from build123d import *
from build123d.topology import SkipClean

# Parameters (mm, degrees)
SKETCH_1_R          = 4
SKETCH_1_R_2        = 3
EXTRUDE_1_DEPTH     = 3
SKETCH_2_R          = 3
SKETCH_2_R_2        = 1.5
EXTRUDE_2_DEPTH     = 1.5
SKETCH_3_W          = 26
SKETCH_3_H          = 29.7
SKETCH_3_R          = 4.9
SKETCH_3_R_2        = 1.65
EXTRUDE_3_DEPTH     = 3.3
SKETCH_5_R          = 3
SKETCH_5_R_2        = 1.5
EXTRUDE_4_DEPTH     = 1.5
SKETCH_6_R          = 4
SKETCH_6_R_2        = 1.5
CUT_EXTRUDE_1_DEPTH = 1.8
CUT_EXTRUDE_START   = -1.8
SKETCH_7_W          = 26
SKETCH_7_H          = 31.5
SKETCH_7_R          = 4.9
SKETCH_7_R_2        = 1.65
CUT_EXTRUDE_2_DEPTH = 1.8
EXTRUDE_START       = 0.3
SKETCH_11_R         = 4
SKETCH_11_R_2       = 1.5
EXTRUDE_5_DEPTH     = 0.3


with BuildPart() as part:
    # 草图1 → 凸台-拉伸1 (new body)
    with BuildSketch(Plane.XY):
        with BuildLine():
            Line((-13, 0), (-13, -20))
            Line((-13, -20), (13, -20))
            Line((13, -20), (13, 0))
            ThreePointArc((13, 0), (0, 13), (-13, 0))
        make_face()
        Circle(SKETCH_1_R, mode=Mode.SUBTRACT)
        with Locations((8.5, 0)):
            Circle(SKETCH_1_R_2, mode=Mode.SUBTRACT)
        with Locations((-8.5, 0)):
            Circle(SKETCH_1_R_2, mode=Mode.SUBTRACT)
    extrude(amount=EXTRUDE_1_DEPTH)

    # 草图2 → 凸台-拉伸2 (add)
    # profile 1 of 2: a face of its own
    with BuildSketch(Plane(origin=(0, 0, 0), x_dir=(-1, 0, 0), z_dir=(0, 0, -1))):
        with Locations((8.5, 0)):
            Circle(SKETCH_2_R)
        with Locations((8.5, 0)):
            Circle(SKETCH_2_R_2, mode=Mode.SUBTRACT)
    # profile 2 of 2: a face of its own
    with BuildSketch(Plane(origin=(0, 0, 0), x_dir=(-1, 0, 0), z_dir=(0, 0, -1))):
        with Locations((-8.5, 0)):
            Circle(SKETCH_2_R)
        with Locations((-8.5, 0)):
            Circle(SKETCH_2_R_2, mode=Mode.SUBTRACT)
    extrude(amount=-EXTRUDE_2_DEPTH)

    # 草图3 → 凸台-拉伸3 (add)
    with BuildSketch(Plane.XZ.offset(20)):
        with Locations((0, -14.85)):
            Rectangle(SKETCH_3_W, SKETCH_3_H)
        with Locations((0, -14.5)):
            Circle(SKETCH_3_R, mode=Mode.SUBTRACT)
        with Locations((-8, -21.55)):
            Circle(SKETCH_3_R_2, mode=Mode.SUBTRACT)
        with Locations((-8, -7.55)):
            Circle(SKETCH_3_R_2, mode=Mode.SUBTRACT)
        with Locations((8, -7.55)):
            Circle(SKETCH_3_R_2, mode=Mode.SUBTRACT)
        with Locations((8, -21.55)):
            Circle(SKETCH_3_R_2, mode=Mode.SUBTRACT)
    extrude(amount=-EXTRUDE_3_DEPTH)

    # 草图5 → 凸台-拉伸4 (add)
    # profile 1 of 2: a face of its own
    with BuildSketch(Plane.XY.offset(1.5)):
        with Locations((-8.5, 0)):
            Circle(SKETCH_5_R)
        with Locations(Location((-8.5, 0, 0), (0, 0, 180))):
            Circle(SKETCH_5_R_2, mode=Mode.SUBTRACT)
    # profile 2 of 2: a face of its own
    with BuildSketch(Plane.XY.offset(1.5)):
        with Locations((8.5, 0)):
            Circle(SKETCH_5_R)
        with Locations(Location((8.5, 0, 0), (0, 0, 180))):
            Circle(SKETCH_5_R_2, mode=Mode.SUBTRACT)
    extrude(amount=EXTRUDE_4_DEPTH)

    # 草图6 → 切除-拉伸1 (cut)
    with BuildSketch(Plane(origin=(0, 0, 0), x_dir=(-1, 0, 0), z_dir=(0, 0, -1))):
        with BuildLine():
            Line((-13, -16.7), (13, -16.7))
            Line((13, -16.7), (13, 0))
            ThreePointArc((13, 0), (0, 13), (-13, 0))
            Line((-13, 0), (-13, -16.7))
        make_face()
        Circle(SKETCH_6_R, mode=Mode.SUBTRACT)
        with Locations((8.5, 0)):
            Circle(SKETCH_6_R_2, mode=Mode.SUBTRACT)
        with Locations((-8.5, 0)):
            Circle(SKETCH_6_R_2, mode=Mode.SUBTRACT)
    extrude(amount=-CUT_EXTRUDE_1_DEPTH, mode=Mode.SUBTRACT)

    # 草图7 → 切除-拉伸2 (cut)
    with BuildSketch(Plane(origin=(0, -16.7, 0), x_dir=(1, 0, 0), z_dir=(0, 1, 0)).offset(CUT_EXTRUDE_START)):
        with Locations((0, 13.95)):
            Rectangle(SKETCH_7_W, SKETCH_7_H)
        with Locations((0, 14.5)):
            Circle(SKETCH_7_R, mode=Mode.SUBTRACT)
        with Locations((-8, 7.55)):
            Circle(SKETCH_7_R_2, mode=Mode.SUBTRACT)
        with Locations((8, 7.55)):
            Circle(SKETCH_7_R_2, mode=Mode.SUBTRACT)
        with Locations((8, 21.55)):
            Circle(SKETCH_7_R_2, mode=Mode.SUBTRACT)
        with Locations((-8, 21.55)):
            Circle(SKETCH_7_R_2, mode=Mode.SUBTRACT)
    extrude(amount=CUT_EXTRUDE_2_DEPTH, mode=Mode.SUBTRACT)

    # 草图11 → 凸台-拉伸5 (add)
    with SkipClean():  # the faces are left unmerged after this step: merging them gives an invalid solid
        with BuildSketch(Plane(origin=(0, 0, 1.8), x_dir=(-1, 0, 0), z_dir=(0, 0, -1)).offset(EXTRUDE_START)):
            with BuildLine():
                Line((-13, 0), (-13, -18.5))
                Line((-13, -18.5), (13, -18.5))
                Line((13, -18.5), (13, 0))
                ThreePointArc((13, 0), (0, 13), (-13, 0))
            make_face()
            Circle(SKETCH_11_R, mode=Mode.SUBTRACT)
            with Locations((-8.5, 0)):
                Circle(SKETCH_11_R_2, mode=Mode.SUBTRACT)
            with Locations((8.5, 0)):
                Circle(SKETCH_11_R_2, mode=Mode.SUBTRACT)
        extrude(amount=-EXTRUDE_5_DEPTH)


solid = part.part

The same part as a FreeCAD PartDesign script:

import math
import FreeCAD as App
import Part
import Sketcher
from FreeCAD import Vector
Q = App.Units.Quantity


def add_polygon(sketch, points):
    """Adds a closed chain of lines whose ends are joined by coincident constraints."""
    first, n = sketch.GeometryCount, len(points)
    for a, b in zip(points, points[1:] + points[:1]):
        sketch.addGeometry(Part.LineSegment(App.Vector(*a, 0), App.Vector(*b, 0)), False)
    for i in range(n):
        sketch.addConstraint(Sketcher.Constraint("Coincident", first + i, 2, first + (i + 1) % n, 1))

doc = App.newDocument("Part")
body = doc.addObject("PartDesign::Body", "Body")

# Sketch on XY plane
sketch1 = doc.addObject("Sketcher::SketchObject", "Sketch")
body.addObject(sketch1)
sketch1.AttachmentSupport = (doc.XY_Plane, [""])
sketch1.MapMode = "FlatFace"
sketch1.addGeometry(Part.LineSegment(Vector(-13, 0, 0), Vector(-13, -20, 0)), False)
sketch1.addGeometry(Part.LineSegment(Vector(-13, -20, 0), Vector(13, -20, 0)), False)
sketch1.addGeometry(Part.LineSegment(Vector(13, -20, 0), Vector(13, 0, 0)), False)
sketch1.addGeometry(Part.ArcOfCircle(Part.Circle(Vector(0, 0, 0), Vector(0, 0, 1), 13), math.radians(0), math.radians(180)), False)
sketch1.addGeometry(Part.Circle(Vector(-8.5, 0, 0), Vector(0, 0, 1), 3), False)
sketch1.addGeometry(Part.Circle(Vector(0, 0, 0), Vector(0, 0, 1), 4), False)
sketch1.addGeometry(Part.Circle(Vector(8.5, 0, 0), Vector(0, 0, 1), 3), False)
sketch1.addConstraint(Sketcher.Constraint("Coincident", 0, 2, 1, 1))
sketch1.addConstraint(Sketcher.Constraint("Coincident", 1, 2, 2, 1))
sketch1.addConstraint(Sketcher.Constraint("Tangent", 2, 2, 3, 1))
sketch1.addConstraint(Sketcher.Constraint("Tangent", 3, 2, 0, 1))
sketch1.addConstraint(Sketcher.Constraint("Vertical", 0))
sketch1.addConstraint(Sketcher.Constraint("Horizontal", 1))
sketch1.addConstraint(Sketcher.Constraint("Vertical", 2))
sketch1.addConstraint(Sketcher.Constraint("Coincident", 3, 3, -1, 1))
sketch1.addConstraint(Sketcher.Constraint("Coincident", 5, 3, -1, 1))
sketch1.addConstraint(Sketcher.Constraint("Equal", 4, 6))
sketch1.addConstraint(Sketcher.Constraint("Symmetric", 4, 3, 6, 3, -1, 1))
sketch1.addConstraint(Sketcher.Constraint("PointOnObject", 4, 3, -1))
sketch1.addConstraint(Sketcher.Constraint("Diameter", 4, Q("6 mm")))
sketch1.addConstraint(Sketcher.Constraint("Diameter", 5, Q("8 mm")))
sketch1.addConstraint(Sketcher.Constraint("Radius", 3, Q("13 mm")))
sketch1.addConstraint(Sketcher.Constraint("DistanceY", 0, 2, 0, 1, Q("20 mm")))
sketch1.addConstraint(Sketcher.Constraint("DistanceX", 4, 3, 6, 3, Q("17 mm")))
pad1 = doc.addObject("PartDesign::Pad", "Pad")
body.addObject(pad1)
pad1.Profile = sketch1
pad1.Length = 3

# Sketch on XY plane
sketch2 = doc.addObject("Sketcher::SketchObject", "Sketch001")
body.addObject(sketch2)
sketch2.AttachmentSupport = (doc.XY_Plane, [""])
sketch2.MapMode = "FlatFace"
sketch2.addGeometry(Part.Circle(Vector(-8.5, 0, 0), Vector(0, 0, 1), 3), False)
sketch2.addGeometry(Part.Circle(Vector(-8.5, 0, 0), Vector(0, 0, 1), 1.5), False)
sketch2.addGeometry(Part.Circle(Vector(8.5, 0, 0), Vector(0, 0, 1), 3), False)
sketch2.addGeometry(Part.Circle(Vector(8.5, 0, 0), Vector(0, 0, 1), 1.5), False)
sketch2.addConstraint(Sketcher.Constraint("Coincident", 1, 3, 0, 3))
sketch2.addConstraint(Sketcher.Constraint("Coincident", 3, 3, 2, 3))
sketch2.addConstraint(Sketcher.Constraint("Equal", 0, 2))
sketch2.addConstraint(Sketcher.Constraint("Equal", 1, 3))
sketch2.addConstraint(Sketcher.Constraint("Symmetric", 0, 3, 2, 3, -1, 1))
sketch2.addConstraint(Sketcher.Constraint("PointOnObject", 0, 3, -1))
sketch2.addConstraint(Sketcher.Constraint("Diameter", 0, Q("6 mm")))
sketch2.addConstraint(Sketcher.Constraint("Diameter", 1, Q("3 mm")))
sketch2.addConstraint(Sketcher.Constraint("DistanceX", 0, 3, 2, 3, Q("17 mm")))
pad2 = doc.addObject("PartDesign::Pad", "Pad001")
body.addObject(pad2)
pad2.Profile = sketch2
pad2.Length = 1.5

# Sketch on XZ plane
sketch3 = doc.addObject("Sketcher::SketchObject", "Sketch002")
body.addObject(sketch3)
sketch3.AttachmentSupport = (doc.XZ_Plane, [""])
sketch3.MapMode = "FlatFace"
sketch3.AttachmentOffset = App.Placement(Vector(0, 0, 20), App.Rotation())
add_polygon(sketch3, [(-13, 0), (-13, -29.7), (13, -29.7), (13, 0)])  # lines 0-3
sketch3.addGeometry(Part.Circle(Vector(-8, -21.6, 0), Vector(0, 0, 1), 1.6), False)  # 4
sketch3.addGeometry(Part.Circle(Vector(8, -21.6, 0), Vector(0, 0, 1), 1.6), False)  # 5
sketch3.addGeometry(Part.Circle(Vector(-8, -7.5, 0), Vector(0, 0, 1), 1.6), False)  # 6
sketch3.addGeometry(Part.Circle(Vector(0, -14.5, 0), Vector(0, 0, 1), 4.9), False)  # 7
sketch3.addGeometry(Part.Circle(Vector(8, -7.5, 0), Vector(0, 0, 1), 1.6), False)  # 8
sketch3.addConstraint(Sketcher.Constraint("Vertical", 0))
sketch3.addConstraint(Sketcher.Constraint("Horizontal", 1))
sketch3.addConstraint(Sketcher.Constraint("Vertical", 2))
sketch3.addConstraint(Sketcher.Constraint("Horizontal", 3))
sketch3.addConstraint(Sketcher.Constraint("Equal", 4, 5))
sketch3.addConstraint(Sketcher.Constraint("Equal", 5, 6))
sketch3.addConstraint(Sketcher.Constraint("Equal", 6, 8))
sketch3.addConstraint(Sketcher.Constraint("Symmetric", 2, 2, 3, 2, -1, 1))
sketch3.addConstraint(Sketcher.Constraint("Symmetric", 4, 3, 5, 3, -2))
sketch3.addConstraint(Sketcher.Constraint("Symmetric", 6, 3, 8, 3, -2))
sketch3.addConstraint(Sketcher.Constraint("PointOnObject", 7, 3, -2))
sketch3.addConstraint(Sketcher.Constraint("Vertical", 4, 3, 6, 3))
sketch3.addConstraint(Sketcher.Constraint("Diameter", 4, Q("3.3 mm")))
sketch3.addConstraint(Sketcher.Constraint("Diameter", 7, Q("9.8 mm")))
sketch3.addConstraint(Sketcher.Constraint("DistanceX", 1, 1, 1, 2, Q("26 mm")))
sketch3.addConstraint(Sketcher.Constraint("DistanceY", 0, 2, 0, 1, Q("29.7 mm")))
sketch3.addConstraint(Sketcher.Constraint("DistanceX", 4, 3, -1, 1, Q("8 mm")))
sketch3.addConstraint(Sketcher.Constraint("DistanceY", 4, 3, 6, 3, Q("14 mm")))
sketch3.addConstraint(Sketcher.Constraint("DistanceY", 7, 3, -1, 1, Q("14.5 mm")))
sketch3.addConstraint(Sketcher.Constraint("DistanceY", 4, 3, -1, 1, Q("21.55 mm")))
pad3 = doc.addObject("PartDesign::Pad", "Pad002")
body.addObject(pad3)
pad3.Profile = sketch3
pad3.Length = 3.3
pad3.Reversed = True

# Sketch on XY plane
sketch4 = doc.addObject("Sketcher::SketchObject", "Sketch003")
body.addObject(sketch4)
sketch4.AttachmentSupport = (doc.XY_Plane, [""])
sketch4.MapMode = "FlatFace"
sketch4.AttachmentOffset = App.Placement(Vector(0, 0, 1.5), App.Rotation())
sketch4.addGeometry(Part.Circle(Vector(-8.5, 0, 0), Vector(0, 0, 1), 3), False)
sketch4.addGeometry(Part.Circle(Vector(-8.5, 0, 0), Vector(0, 0, 1), 1.5), False)
sketch4.addGeometry(Part.Circle(Vector(8.5, 0, 0), Vector(0, 0, 1), 3), False)
sketch4.addGeometry(Part.Circle(Vector(8.5, 0, 0), Vector(0, 0, 1), 1.5), False)
sketch4.addConstraint(Sketcher.Constraint("Coincident", 1, 3, 0, 3))
sketch4.addConstraint(Sketcher.Constraint("Coincident", 3, 3, 2, 3))
sketch4.addConstraint(Sketcher.Constraint("Equal", 0, 2))
sketch4.addConstraint(Sketcher.Constraint("Equal", 1, 3))
sketch4.addConstraint(Sketcher.Constraint("Symmetric", 0, 3, 2, 3, -1, 1))
sketch4.addConstraint(Sketcher.Constraint("PointOnObject", 0, 3, -1))
sketch4.addConstraint(Sketcher.Constraint("Diameter", 0, Q("6 mm")))
sketch4.addConstraint(Sketcher.Constraint("Diameter", 1, Q("3 mm")))
sketch4.addConstraint(Sketcher.Constraint("DistanceX", 0, 3, 2, 3, Q("17 mm")))
pad4 = doc.addObject("PartDesign::Pad", "Pad003")
body.addObject(pad4)
pad4.Profile = sketch4
pad4.Length = 1.5

# Sketch on XY plane
sketch5 = doc.addObject("Sketcher::SketchObject", "Sketch004")
body.addObject(sketch5)
sketch5.AttachmentSupport = (doc.XY_Plane, [""])
sketch5.MapMode = "FlatFace"
sketch5.addGeometry(Part.LineSegment(Vector(13, -16.7, 0), Vector(-13, -16.7, 0)), False)
sketch5.addGeometry(Part.LineSegment(Vector(-13, -16.7, 0), Vector(-13, 0, 0)), False)
sketch5.addGeometry(Part.ArcOfCircle(Part.Circle(Vector(0, 0, 0), Vector(0, 0, 1), 13), math.radians(0), math.radians(180)), False)
sketch5.addGeometry(Part.LineSegment(Vector(13, 0, 0), Vector(13, -16.7, 0)), False)
sketch5.addGeometry(Part.Circle(Vector(8.5, 0, 0), Vector(0, 0, 1), 1.5), False)
sketch5.addGeometry(Part.Circle(Vector(0, 0, 0), Vector(0, 0, 1), 4), False)
sketch5.addGeometry(Part.Circle(Vector(-8.5, 0, 0), Vector(0, 0, 1), 1.5), False)
sketch5.addConstraint(Sketcher.Constraint("Coincident", 0, 2, 1, 1))
sketch5.addConstraint(Sketcher.Constraint("Tangent", 1, 2, 2, 2))
sketch5.addConstraint(Sketcher.Constraint("Tangent", 2, 1, 3, 1))
sketch5.addConstraint(Sketcher.Constraint("Coincident", 3, 2, 0, 1))
sketch5.addConstraint(Sketcher.Constraint("Horizontal", 0))
sketch5.addConstraint(Sketcher.Constraint("Vertical", 1))
sketch5.addConstraint(Sketcher.Constraint("Vertical", 3))
sketch5.addConstraint(Sketcher.Constraint("Coincident", 2, 3, -1, 1))
sketch5.addConstraint(Sketcher.Constraint("Coincident", 5, 3, -1, 1))
sketch5.addConstraint(Sketcher.Constraint("Equal", 4, 6))
sketch5.addConstraint(Sketcher.Constraint("Symmetric", 4, 3, 6, 3, -1, 1))
sketch5.addConstraint(Sketcher.Constraint("PointOnObject", 4, 3, -1))
sketch5.addConstraint(Sketcher.Constraint("Diameter", 4, Q("3 mm")))
sketch5.addConstraint(Sketcher.Constraint("Diameter", 5, Q("8 mm")))
sketch5.addConstraint(Sketcher.Constraint("Radius", 2, Q("13 mm")))
sketch5.addConstraint(Sketcher.Constraint("DistanceY", 1, 1, 1, 2, Q("16.7 mm")))
sketch5.addConstraint(Sketcher.Constraint("DistanceX", 6, 3, 4, 3, Q("17 mm")))
pocket1 = doc.addObject("PartDesign::Pocket", "Pocket")
body.addObject(pocket1)
pocket1.Profile = sketch5
pocket1.Length = 1.8
pocket1.Reversed = True

# Sketch on XZ plane
sketch6 = doc.addObject("Sketcher::SketchObject", "Sketch005")
body.addObject(sketch6)
sketch6.AttachmentSupport = (doc.XZ_Plane, [""])
sketch6.MapMode = "FlatFace"
sketch6.AttachmentOffset = App.Placement(Vector(0, 0, 18.5), App.Rotation())
add_polygon(sketch6, [(-13, -29.7), (-13, 1.8), (13, 1.8), (13, -29.7)])  # lines 0-3
sketch6.addGeometry(Part.Circle(Vector(-8, -7.5, 0), Vector(0, 0, 1), 1.6), False)  # 4
sketch6.addGeometry(Part.Circle(Vector(8, -7.5, 0), Vector(0, 0, 1), 1.6), False)  # 5
sketch6.addGeometry(Part.Circle(Vector(0, -14.5, 0), Vector(0, 0, 1), 4.9), False)  # 6
sketch6.addGeometry(Part.Circle(Vector(-8, -21.6, 0), Vector(0, 0, 1), 1.6), False)  # 7
sketch6.addGeometry(Part.Circle(Vector(8, -21.6, 0), Vector(0, 0, 1), 1.6), False)  # 8
sketch6.addConstraint(Sketcher.Constraint("Vertical", 0))
sketch6.addConstraint(Sketcher.Constraint("Horizontal", 1))
sketch6.addConstraint(Sketcher.Constraint("Vertical", 2))
sketch6.addConstraint(Sketcher.Constraint("Horizontal", 3))
sketch6.addConstraint(Sketcher.Constraint("Equal", 4, 5))
sketch6.addConstraint(Sketcher.Constraint("Equal", 5, 7))
sketch6.addConstraint(Sketcher.Constraint("Equal", 7, 8))
sketch6.addConstraint(Sketcher.Constraint("Symmetric", 4, 3, 5, 3, -2))
sketch6.addConstraint(Sketcher.Constraint("Symmetric", 7, 3, 8, 3, -2))
sketch6.addConstraint(Sketcher.Constraint("PointOnObject", 6, 3, -2))
sketch6.addConstraint(Sketcher.Constraint("Vertical", 4, 3, 7, 3))
sketch6.addConstraint(Sketcher.Constraint("Diameter", 4, Q("3.3 mm")))
sketch6.addConstraint(Sketcher.Constraint("Diameter", 6, Q("9.8 mm")))
sketch6.addConstraint(Sketcher.Constraint("DistanceX", 1, 1, 1, 2, Q("26 mm")))
sketch6.addConstraint(Sketcher.Constraint("DistanceY", 0, 1, 0, 2, Q("31.5 mm")))
sketch6.addConstraint(Sketcher.Constraint("DistanceX", 4, 3, -1, 1, Q("8 mm")))
sketch6.addConstraint(Sketcher.Constraint("DistanceX", 0, 2, -1, 1, Q("13 mm")))
sketch6.addConstraint(Sketcher.Constraint("DistanceY", 7, 3, 4, 3, Q("14 mm")))
sketch6.addConstraint(Sketcher.Constraint("DistanceY", 6, 3, -1, 1, Q("14.5 mm")))
sketch6.addConstraint(Sketcher.Constraint("DistanceY", -1, 1, 0, 2, Q("1.8 mm")))
sketch6.addConstraint(Sketcher.Constraint("DistanceY", 4, 3, -1, 1, Q("7.55 mm")))
pocket2 = doc.addObject("PartDesign::Pocket", "Pocket001")
body.addObject(pocket2)
pocket2.Profile = sketch6
pocket2.Length = 1.8

# Sketch on XY plane
sketch7 = doc.addObject("Sketcher::SketchObject", "Sketch006")
body.addObject(sketch7)
sketch7.AttachmentSupport = (doc.XY_Plane, [""])
sketch7.MapMode = "FlatFace"
sketch7.AttachmentOffset = App.Placement(Vector(0, 0, 1.5), App.Rotation())
sketch7.addGeometry(Part.LineSegment(Vector(13, 0, 0), Vector(13, -18.5, 0)), False)
sketch7.addGeometry(Part.LineSegment(Vector(13, -18.5, 0), Vector(-13, -18.5, 0)), False)
sketch7.addGeometry(Part.LineSegment(Vector(-13, -18.5, 0), Vector(-13, 0, 0)), False)
sketch7.addGeometry(Part.ArcOfCircle(Part.Circle(Vector(0, 0, 0), Vector(0, 0, 1), 13), math.radians(0), math.radians(180)), False)
sketch7.addGeometry(Part.Circle(Vector(8.5, 0, 0), Vector(0, 0, 1), 1.5), False)
sketch7.addGeometry(Part.Circle(Vector(0, 0, 0), Vector(0, 0, 1), 4), False)
sketch7.addGeometry(Part.Circle(Vector(-8.5, 0, 0), Vector(0, 0, 1), 1.5), False)
sketch7.addConstraint(Sketcher.Constraint("Coincident", 0, 2, 1, 1))
sketch7.addConstraint(Sketcher.Constraint("Coincident", 1, 2, 2, 1))
sketch7.addConstraint(Sketcher.Constraint("Tangent", 2, 2, 3, 2))
sketch7.addConstraint(Sketcher.Constraint("Tangent", 3, 1, 0, 1))
sketch7.addConstraint(Sketcher.Constraint("Vertical", 0))
sketch7.addConstraint(Sketcher.Constraint("Horizontal", 1))
sketch7.addConstraint(Sketcher.Constraint("Vertical", 2))
sketch7.addConstraint(Sketcher.Constraint("Coincident", 3, 3, -1, 1))
sketch7.addConstraint(Sketcher.Constraint("Coincident", 5, 3, -1, 1))
sketch7.addConstraint(Sketcher.Constraint("Equal", 4, 6))
sketch7.addConstraint(Sketcher.Constraint("Symmetric", 4, 3, 6, 3, -1, 1))
sketch7.addConstraint(Sketcher.Constraint("PointOnObject", 4, 3, -1))
sketch7.addConstraint(Sketcher.Constraint("Diameter", 4, Q("3 mm")))
sketch7.addConstraint(Sketcher.Constraint("Diameter", 5, Q("8 mm")))
sketch7.addConstraint(Sketcher.Constraint("Radius", 3, Q("13 mm")))
sketch7.addConstraint(Sketcher.Constraint("DistanceY", 0, 2, 0, 1, Q("18.5 mm")))
sketch7.addConstraint(Sketcher.Constraint("DistanceX", 6, 3, 4, 3, Q("17 mm")))
pad5 = doc.addObject("PartDesign::Pad", "Pad004")
body.addObject(pad5)
pad5.Profile = sketch7
pad5.Length = 0.3

doc.recompute()
